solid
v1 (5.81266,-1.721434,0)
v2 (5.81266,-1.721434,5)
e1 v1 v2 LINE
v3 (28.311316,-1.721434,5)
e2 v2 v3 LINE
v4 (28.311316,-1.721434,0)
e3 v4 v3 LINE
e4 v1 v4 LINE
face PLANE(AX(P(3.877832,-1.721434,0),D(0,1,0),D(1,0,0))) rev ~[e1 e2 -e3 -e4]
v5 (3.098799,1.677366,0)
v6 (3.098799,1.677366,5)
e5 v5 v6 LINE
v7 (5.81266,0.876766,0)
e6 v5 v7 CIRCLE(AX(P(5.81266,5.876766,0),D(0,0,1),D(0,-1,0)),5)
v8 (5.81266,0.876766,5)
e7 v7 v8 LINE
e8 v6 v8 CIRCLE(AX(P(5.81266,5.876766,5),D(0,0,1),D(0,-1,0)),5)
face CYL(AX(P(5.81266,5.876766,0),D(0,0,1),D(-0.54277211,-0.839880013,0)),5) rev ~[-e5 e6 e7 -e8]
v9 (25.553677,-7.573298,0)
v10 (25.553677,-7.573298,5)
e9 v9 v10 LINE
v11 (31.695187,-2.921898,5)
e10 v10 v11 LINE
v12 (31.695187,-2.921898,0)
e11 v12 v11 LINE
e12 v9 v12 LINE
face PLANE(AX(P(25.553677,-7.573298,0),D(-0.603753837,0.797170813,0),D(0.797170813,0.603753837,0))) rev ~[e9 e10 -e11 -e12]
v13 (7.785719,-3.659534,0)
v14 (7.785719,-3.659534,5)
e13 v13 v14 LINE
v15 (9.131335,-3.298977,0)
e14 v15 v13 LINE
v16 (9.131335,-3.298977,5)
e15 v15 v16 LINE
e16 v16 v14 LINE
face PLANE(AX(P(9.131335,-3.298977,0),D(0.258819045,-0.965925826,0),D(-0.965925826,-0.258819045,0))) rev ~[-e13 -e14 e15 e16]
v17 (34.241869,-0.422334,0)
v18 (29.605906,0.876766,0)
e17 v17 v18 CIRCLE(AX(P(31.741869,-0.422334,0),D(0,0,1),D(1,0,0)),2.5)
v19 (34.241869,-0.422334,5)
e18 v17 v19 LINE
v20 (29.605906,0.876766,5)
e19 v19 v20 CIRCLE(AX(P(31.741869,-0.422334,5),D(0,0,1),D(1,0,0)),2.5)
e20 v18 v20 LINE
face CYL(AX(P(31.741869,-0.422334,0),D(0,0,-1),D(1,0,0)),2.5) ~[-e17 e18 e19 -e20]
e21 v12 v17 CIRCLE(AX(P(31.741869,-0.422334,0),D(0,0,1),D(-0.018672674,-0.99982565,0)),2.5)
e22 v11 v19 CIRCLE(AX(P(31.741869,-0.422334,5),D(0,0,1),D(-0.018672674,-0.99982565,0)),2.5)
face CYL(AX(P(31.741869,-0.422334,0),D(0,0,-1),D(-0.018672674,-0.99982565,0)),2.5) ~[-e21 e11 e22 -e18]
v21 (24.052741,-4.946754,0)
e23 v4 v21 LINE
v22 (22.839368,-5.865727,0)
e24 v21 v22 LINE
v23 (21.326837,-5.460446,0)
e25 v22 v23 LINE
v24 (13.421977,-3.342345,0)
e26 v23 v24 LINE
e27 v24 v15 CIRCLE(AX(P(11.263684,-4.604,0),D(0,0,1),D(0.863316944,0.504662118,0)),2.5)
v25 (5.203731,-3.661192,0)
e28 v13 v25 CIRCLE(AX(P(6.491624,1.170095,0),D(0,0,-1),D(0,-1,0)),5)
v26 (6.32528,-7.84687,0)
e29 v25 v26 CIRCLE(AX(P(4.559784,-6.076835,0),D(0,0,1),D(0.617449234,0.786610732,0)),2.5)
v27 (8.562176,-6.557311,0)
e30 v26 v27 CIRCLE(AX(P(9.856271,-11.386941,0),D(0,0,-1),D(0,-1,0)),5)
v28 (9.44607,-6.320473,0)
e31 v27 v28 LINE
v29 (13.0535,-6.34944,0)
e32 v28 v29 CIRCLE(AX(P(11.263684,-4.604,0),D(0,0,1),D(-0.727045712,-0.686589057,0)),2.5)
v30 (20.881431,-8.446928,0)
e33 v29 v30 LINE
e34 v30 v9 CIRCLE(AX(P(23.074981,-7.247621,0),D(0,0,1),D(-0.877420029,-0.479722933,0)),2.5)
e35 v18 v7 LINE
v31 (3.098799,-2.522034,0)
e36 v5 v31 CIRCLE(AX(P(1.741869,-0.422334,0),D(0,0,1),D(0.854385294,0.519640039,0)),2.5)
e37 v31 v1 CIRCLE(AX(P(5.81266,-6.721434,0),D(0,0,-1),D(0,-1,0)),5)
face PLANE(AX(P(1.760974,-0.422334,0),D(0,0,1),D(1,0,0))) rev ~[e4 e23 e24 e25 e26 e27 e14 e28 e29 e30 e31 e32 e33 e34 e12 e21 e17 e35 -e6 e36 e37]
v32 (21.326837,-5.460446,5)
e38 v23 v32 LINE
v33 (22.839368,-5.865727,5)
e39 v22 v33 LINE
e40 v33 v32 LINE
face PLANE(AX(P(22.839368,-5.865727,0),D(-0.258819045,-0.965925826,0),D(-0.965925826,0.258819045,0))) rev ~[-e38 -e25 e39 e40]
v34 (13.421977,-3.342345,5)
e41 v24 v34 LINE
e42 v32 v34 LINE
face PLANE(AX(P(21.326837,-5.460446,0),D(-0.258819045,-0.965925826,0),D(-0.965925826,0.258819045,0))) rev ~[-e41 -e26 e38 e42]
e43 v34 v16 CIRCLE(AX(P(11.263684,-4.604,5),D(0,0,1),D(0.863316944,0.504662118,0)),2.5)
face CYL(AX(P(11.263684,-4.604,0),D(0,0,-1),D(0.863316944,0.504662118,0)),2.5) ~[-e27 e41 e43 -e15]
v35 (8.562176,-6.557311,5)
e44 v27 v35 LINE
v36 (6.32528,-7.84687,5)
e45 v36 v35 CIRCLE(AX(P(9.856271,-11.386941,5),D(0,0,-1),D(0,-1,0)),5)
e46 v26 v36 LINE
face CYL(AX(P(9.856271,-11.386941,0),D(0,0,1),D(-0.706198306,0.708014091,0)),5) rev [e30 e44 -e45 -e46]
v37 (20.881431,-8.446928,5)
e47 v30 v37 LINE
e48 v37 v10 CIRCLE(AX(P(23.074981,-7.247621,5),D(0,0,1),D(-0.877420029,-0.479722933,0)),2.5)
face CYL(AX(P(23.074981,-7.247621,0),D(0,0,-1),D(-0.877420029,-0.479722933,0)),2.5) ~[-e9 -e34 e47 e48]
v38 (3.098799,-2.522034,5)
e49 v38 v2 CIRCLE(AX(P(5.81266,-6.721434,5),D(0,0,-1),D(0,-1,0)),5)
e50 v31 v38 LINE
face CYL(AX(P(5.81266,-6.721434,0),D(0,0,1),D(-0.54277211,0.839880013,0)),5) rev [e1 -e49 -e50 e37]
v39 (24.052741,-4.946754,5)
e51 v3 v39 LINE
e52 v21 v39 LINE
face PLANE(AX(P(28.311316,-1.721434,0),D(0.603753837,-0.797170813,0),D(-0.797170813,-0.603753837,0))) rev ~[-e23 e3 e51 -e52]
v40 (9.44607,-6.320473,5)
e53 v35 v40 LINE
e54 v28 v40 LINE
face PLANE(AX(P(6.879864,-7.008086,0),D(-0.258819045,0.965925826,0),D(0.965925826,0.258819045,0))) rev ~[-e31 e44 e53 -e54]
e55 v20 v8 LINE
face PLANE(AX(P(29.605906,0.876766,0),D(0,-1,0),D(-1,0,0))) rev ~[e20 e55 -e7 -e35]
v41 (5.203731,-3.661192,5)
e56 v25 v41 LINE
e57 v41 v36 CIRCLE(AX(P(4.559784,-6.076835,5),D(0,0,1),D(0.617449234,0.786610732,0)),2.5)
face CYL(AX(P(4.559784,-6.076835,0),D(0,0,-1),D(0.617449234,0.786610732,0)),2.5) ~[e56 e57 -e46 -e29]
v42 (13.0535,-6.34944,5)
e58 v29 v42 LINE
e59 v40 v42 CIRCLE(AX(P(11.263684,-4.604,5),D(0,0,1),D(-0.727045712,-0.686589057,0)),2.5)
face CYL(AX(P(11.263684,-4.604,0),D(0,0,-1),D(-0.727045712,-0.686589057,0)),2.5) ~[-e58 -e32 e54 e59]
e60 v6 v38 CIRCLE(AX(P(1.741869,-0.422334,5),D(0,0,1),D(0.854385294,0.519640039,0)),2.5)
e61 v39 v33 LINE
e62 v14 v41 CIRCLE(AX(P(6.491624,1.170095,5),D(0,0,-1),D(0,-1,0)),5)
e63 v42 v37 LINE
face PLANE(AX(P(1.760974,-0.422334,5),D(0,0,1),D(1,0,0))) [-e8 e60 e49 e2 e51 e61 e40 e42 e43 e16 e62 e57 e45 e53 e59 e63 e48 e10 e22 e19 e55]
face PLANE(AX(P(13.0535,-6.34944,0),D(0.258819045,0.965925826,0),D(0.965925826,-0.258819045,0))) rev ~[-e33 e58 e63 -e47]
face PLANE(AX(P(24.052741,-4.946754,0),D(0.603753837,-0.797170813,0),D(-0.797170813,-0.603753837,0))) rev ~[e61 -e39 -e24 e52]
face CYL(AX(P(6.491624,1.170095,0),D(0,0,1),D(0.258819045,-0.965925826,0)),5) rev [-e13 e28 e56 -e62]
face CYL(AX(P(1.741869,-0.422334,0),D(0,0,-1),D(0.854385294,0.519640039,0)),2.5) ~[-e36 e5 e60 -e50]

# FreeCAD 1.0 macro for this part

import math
import FreeCAD as App
import Part
import Sketcher
from FreeCAD import Vector
Q = App.Units.Quantity


def edges_at(feature, points):
    """Names of the edges that pass closest to the given points."""
    edges = feature.Shape.Edges
    near = lambda p: min(range(len(edges)), key=lambda i: edges[i].distToShape(Part.Vertex(*p))[0])
    return sorted({f"Edge{near(p) + 1}" for p in points})

doc = App.newDocument("Part")
body = doc.addObject("PartDesign::Body", "Body")

# Sketch on XY plane
sketch1 = body.newObject("Sketcher::SketchObject", "Sketch")
sketch1.AttachmentSupport = (doc.getObject("XY_Plane"), [""])
sketch1.MapMode = "FlatFace"
sketch1.addGeometry([
    Part.LineSegment(Vector(13.1, -6.3, 0), Vector(20.9, -8.4, 0)),  # 0
    Part.ArcOfCircle(Part.Circle(Vector(23.1, -7.2, 0), Vector(0, 0, 1), 2.5), math.radians(-151), math.radians(-7)),  # 1
    Part.LineSegment(Vector(25.6, -7.6, 0), Vector(31.7, -2.9, 0)),  # 2
    Part.ArcOfCircle(Part.Circle(Vector(31.7, -0.4, 0), Vector(0, 0, 1), 2.5), math.radians(-91), math.radians(0)),  # 3
    Part.ArcOfCircle(Part.Circle(Vector(31.7, -0.4, 0), Vector(0, 0, 1), 2.5), math.radians(0), math.radians(149)),  # 4
    Part.LineSegment(Vector(29.6, 0.9, 0), Vector(3.9, 0.9, 0)),  # 5
    Part.ArcOfCircle(Part.Circle(Vector(1.7, -0.4, 0), Vector(0, 0, 1), 2.5), math.radians(0), math.radians(31)),  # 6
    Part.ArcOfCircle(Part.Circle(Vector(1.7, -0.4, 0), Vector(0, 0, 1), 2.5), math.radians(-31), math.radians(0)),  # 7
    Part.LineSegment(Vector(3.9, -1.7, 0), Vector(28.3, -1.7, 0)),  # 8
    Part.LineSegment(Vector(28.3, -1.7, 0), Vector(24.1, -4.9, 0)),  # 9
    Part.LineSegment(Vector(24.1, -4.9, 0), Vector(22.8, -5.9, 0)),  # 10
    Part.LineSegment(Vector(22.8, -5.9, 0), Vector(21.3, -5.5, 0)),  # 11
    Part.LineSegment(Vector(21.3, -5.5, 0), Vector(13.4, -3.3, 0)),  # 12
    Part.ArcOfCircle(Part.Circle(Vector(11.3, -4.6, 0), Vector(0, 0, 1), 2.5), math.radians(30), math.radians(149)),  # 13
    Part.LineSegment(Vector(9.1, -3.3, 0), Vector(6.1, -4.1, 0)),  # 14
    Part.ArcOfCircle(Part.Circle(Vector(4.6, -6.1, 0), Vector(0, 0, 1), 2.5), math.radians(52), math.radians(338)),  # 15
    Part.LineSegment(Vector(6.9, -7, 0), Vector(9.4, -6.3, 0)),  # 16
    Part.ArcOfCircle(Part.Circle(Vector(11.3, -4.6, 0), Vector(0, 0, 1), 2.5), math.radians(-137), math.radians(-44)),  # 17
], False)
sketch1.addConstraint([
    Sketcher.Constraint("Coincident", 0, 2, 1, 1),
    Sketcher.Constraint("Coincident", 1, 2, 2, 1),
    Sketcher.Constraint("Coincident", 2, 2, 3, 1),
    Sketcher.Constraint("Tangent", 3, 2, 4, 1),
    Sketcher.Constraint("Coincident", 4, 2, 5, 1),
    Sketcher.Constraint("Coincident", 5, 2, 6, 2),
    Sketcher.Constraint("Tangent", 6, 1, 7, 2),
    Sketcher.Constraint("Coincident", 7, 1, 8, 1),
    Sketcher.Constraint("Coincident", 8, 2, 9, 1),
    Sketcher.Constraint("Coincident", 9, 2, 10, 1),
    Sketcher.Constraint("Coincident", 10, 2, 11, 1),
    Sketcher.Constraint("Coincident", 11, 2, 12, 1),
    Sketcher.Constraint("Coincident", 12, 2, 13, 1),
    Sketcher.Constraint("Coincident", 13, 2, 14, 1),
    Sketcher.Constraint("Coincident", 14, 2, 15, 1),
    Sketcher.Constraint("Coincident", 15, 2, 16, 1),
    Sketcher.Constraint("Coincident", 16, 2, 17, 1),
    Sketcher.Constraint("Coincident", 17, 2, 0, 1),
    Sketcher.Constraint("Horizontal", 5),
    Sketcher.Constraint("Horizontal", 8),
    Sketcher.Constraint("Coincident", 17, 3, 13, 3),
    Sketcher.Constraint("Equal", 1, 3),
    Sketcher.Constraint("Equal", 3, 4),
    Sketcher.Constraint("Equal", 4, 6),
    Sketcher.Constraint("Equal", 6, 7),
    Sketcher.Constraint("Equal", 7, 13),
    Sketcher.Constraint("Equal", 13, 15),
    Sketcher.Constraint("Equal", 15, 17),
    Sketcher.Constraint("Parallel", 2, 9),
    Sketcher.Constraint("Parallel", 9, 10),
    Sketcher.Constraint("Parallel", 0, 11),
    Sketcher.Constraint("Parallel", 11, 12),
    Sketcher.Constraint("Parallel", 14, 16),
    Sketcher.Constraint("Horizontal", 4, 3, 6, 3),
    Sketcher.Constraint("Horizontal", 7, 3, 3, 2),
    Sketcher.Constraint("Horizontal", 3, 2, 6, 1),
    Sketcher.Constraint("Vertical", 5, 2, 7, 1),
    Sketcher.Constraint("Radius", 1, Q("2.5 mm")),
    Sketcher.Constraint("Angle", 0, Q("-15 deg")),
    Sketcher.Constraint("Angle", 14, Q("-165 deg")),
    Sketcher.Constraint("DistanceX", 6, 3, 3, 3, Q("30 mm")),
    Sketcher.Constraint("DistanceY", 13, 3, -1, 1, Q("4.604 mm")),
    Sketcher.Constraint("Distance", 10, Q("1.522099 mm")),
    Sketcher.Constraint("DistanceY", 1, 2, -1, 1, Q("7.573298 mm")),
    Sketcher.Constraint("DistanceX", -1, 1, 17, 2, Q("13.0535 mm")),
    Sketcher.Constraint("DistanceY", 15, 3, 6, 3, Q("5.654501 mm")),
    Sketcher.Constraint("DistanceX", 15, 3, 13, 3, Q("6.7039 mm")),
    Sketcher.Constraint("DistanceY", 1, 2, 2, 2, Q("4.6514 mm")),
    Sketcher.Constraint("DistanceY", 3, 3, 4, 2, Q("1.2991 mm")),
    Sketcher.Constraint("DistanceY", 0, 2, 10, 2, Q("2.581201 mm")),
    Sketcher.Constraint("DistanceY", 11, 2, 12, 2, Q("2.118101 mm")),
    Sketcher.Constraint("Distance", 0, Q("8.104071 mm")),
    Sketcher.Constraint("Distance", 9, Q("5.342112 mm")),
    Sketcher.Constraint("Distance", 14, Q("3.134741 mm")),
    Sketcher.Constraint("Distance", 16, Q("2.656732 mm")),
    Sketcher.Constraint("DistanceX", 8, 1, 8, 2, Q("24.433484 mm")),
    Sketcher.Constraint("DistanceX", -1, 1, 1, 3, Q("23.074981 mm")),
    Sketcher.Constraint("DistanceY", 1, 3, -1, 1, Q("7.247621 mm")),
    Sketcher.Constraint("DistanceX", -1, 1, 3, 3, Q("31.741869 mm")),
])
pad1 = body.newObject("PartDesign::Pad", "Pad")
pad1.Profile = sketch1
pad1.Length = 5

# Sketch on XY plane
sketch2 = body.newObject("Sketcher::SketchObject", "Sketch001")
sketch2.AttachmentSupport = (doc.getObject("XY_Plane"), [""])
sketch2.MapMode = "FlatFace"
sketch2.addGeometry([
    Part.ArcOfCircle(Part.Circle(Vector(1.7, -0.4, 0), Vector(0, 0, 1), 2.5), math.radians(31), math.radians(329)),
    Part.ArcOfCircle(Part.Circle(Vector(1.7, -0.4, 0), Vector(0, 0, 1), 2.5), math.radians(-31), math.radians(0)),
    Part.ArcOfCircle(Part.Circle(Vector(1.7, -0.4, 0), Vector(0, 0, 1), 2.5), math.radians(0), math.radians(31)),
], False)
sketch2.addConstraint([
    Sketcher.Constraint("Tangent", 0, 2, 1, 1),
    Sketcher.Constraint("Tangent", 1, 2, 2, 1),
    Sketcher.Constraint("Tangent", 2, 2, 0, 1),
    Sketcher.Constraint("Horizontal", 2, 3, 1, 2),
    Sketcher.Constraint("Vertical", 0, 2, 2, 2),
    Sketcher.Constraint("Radius", 0, Q("2.5 mm")),
    Sketcher.Constraint("DistanceY", 0, 2, 1, 3, Q("1.2991 mm")),
    Sketcher.Constraint("DistanceX", -1, 1, 0, 3, Q("1.741869 mm")),
    Sketcher.Constraint("DistanceY", 0, 3, -1, 1, Q("0.422334 mm")),
])
pad2 = body.newObject("PartDesign::Pad", "Pad001")
pad2.Profile = sketch2
pad2.Length = 5
doc.recompute()

fillet = body.newObject("PartDesign::Fillet", "Fillet")
fillet.Base = (pad2, edges_at(pad2, [
    (3.878, 0.877, 2.5),
    (3.878, -1.721, 2.5),
    (6.88, -7.008, 2.5),
    (6.103, -4.11, 2.5),
]))
fillet.Radius = 5

doc.recompute()
